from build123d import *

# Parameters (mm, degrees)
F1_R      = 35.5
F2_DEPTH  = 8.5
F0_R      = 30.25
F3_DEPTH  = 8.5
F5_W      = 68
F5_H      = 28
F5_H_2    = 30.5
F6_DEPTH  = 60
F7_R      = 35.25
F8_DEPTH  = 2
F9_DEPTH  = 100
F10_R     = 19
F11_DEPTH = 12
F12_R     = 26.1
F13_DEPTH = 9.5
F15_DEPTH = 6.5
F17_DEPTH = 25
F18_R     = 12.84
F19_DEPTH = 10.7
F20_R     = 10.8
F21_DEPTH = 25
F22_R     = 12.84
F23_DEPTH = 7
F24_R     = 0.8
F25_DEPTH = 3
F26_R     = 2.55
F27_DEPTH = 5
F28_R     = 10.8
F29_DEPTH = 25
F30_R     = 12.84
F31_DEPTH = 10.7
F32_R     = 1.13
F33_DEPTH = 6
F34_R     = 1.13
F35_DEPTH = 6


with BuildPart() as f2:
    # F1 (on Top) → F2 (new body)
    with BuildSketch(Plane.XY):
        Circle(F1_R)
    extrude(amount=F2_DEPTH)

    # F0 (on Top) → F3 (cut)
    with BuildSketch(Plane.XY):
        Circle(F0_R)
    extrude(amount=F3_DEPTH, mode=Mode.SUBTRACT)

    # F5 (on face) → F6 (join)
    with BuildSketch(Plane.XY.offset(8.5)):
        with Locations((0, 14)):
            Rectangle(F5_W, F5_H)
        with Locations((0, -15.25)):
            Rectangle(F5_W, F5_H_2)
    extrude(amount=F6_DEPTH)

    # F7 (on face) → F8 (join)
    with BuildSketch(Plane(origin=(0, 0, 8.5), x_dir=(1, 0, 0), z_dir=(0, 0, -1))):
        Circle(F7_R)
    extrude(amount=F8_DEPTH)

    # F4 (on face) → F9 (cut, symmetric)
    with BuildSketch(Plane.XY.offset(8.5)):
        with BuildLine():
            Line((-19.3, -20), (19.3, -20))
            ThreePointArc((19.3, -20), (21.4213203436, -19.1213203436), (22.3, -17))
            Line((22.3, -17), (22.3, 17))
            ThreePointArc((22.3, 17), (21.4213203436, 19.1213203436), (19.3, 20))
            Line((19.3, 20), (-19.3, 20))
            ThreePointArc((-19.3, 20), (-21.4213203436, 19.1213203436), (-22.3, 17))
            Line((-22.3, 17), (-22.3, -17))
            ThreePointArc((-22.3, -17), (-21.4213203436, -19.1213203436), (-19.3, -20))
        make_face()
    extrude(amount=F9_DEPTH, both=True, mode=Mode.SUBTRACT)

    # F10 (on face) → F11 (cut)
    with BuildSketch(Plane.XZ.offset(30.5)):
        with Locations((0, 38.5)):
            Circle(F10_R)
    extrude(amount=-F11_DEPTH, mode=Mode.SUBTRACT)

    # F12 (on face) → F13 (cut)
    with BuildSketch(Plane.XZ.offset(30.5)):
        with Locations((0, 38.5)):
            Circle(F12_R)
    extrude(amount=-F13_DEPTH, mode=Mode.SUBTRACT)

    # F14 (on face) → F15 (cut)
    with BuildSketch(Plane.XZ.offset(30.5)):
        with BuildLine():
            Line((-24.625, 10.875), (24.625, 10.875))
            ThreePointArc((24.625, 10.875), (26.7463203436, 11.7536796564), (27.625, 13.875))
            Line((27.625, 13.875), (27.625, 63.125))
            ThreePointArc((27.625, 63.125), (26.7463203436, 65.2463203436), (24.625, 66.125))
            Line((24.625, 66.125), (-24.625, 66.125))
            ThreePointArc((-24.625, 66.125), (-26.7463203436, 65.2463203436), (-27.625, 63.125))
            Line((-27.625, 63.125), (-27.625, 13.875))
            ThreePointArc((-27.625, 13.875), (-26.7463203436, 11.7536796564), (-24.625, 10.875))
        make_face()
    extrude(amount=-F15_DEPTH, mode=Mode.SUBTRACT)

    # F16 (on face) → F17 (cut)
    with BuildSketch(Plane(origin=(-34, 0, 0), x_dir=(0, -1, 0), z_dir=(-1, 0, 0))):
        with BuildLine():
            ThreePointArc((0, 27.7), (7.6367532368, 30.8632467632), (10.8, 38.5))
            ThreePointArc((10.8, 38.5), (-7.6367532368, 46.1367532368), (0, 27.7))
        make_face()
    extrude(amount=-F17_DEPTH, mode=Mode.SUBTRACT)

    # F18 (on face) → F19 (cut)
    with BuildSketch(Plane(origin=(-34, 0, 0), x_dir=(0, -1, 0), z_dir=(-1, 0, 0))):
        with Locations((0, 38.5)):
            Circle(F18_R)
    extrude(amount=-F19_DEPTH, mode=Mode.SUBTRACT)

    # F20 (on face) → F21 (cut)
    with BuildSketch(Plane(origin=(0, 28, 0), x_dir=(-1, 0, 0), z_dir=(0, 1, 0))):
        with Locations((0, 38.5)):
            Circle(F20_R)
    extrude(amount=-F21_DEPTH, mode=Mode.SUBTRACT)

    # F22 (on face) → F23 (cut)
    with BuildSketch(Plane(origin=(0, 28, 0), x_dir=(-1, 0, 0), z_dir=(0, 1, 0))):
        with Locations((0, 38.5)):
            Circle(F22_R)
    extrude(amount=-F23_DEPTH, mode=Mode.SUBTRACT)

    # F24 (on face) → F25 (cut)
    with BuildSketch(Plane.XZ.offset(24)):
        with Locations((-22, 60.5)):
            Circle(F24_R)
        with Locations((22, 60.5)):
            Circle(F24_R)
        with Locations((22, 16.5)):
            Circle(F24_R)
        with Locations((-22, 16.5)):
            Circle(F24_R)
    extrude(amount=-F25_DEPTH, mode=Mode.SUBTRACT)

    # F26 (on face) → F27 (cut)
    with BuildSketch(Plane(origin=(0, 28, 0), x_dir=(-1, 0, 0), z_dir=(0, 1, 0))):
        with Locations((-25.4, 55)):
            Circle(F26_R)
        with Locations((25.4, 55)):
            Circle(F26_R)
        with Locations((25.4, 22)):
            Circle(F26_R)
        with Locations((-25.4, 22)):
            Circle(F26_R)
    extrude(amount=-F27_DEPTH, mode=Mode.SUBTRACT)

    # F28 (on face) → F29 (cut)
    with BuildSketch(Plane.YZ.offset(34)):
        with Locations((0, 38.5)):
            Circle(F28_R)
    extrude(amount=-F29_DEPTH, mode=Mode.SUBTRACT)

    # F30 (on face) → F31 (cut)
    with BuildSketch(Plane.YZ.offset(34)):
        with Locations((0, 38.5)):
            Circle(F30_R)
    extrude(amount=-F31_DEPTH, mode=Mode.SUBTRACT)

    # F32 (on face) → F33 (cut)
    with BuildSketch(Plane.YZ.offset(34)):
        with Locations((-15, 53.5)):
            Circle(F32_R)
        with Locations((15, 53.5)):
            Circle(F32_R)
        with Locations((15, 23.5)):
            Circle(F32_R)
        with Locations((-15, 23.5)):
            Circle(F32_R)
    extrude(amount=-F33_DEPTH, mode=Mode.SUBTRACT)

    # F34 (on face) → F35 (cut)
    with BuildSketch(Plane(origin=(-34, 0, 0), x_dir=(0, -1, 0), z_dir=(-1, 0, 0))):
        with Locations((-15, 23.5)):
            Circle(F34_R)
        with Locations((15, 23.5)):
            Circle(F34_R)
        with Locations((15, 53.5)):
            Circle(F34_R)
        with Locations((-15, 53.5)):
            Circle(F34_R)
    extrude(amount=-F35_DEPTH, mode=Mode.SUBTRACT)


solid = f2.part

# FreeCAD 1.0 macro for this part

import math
import FreeCAD as App
import Part
import Sketcher

V = App.Vector
Q = App.Units.Quantity


def add_polygon(sketch, points):
    """Adds a closed chain of lines whose ends are joined by coincident constraints."""
    first, n = sketch.GeometryCount, len(points)
    for a, b in zip(points, points[1:] + points[:1]):
        sketch.addGeometry(Part.LineSegment(App.Vector(*a, 0), App.Vector(*b, 0)), False)
    for i in range(n):
        sketch.addConstraint(Sketcher.Constraint("Coincident", first + i, 2, first + (i + 1) % n, 1))

doc = App.newDocument("Part")
body = doc.addObject("PartDesign::Body", "Body")

sketch1 = body.newObject("Sketcher::SketchObject", "Sketch")
sketch1.AttachmentSupport = (doc.getObject("XY_Plane"), [""])
sketch1.MapMode = "FlatFace"
sketch1.addGeometry(Part.Circle(V(0, 0, 0), V(0, 0, 1), 36), False)
sketch1.addConstraint([
    Sketcher.Constraint("Coincident", 0, 3, -1, 1),
    Sketcher.Constraint("Diameter", 0, Q("71 mm")),
])
pad1 = body.newObject("PartDesign::Pad", "Pad")
pad1.Profile = sketch1
pad1.Length = 8.5

sketch2 = body.newObject("Sketcher::SketchObject", "Sketch001")
sketch2.AttachmentSupport = (doc.getObject("XY_Plane"), [""])
sketch2.MapMode = "FlatFace"
sketch2.addGeometry(Part.Circle(V(0, 0, 0), V(0, 0, 1), 30), False)
sketch2.addConstraint([
    Sketcher.Constraint("Coincident", 0, 3, -1, 1),
    Sketcher.Constraint("Diameter", 0, Q("60.5 mm")),
])
pocket1 = body.newObject("PartDesign::Pocket", "Pocket")
pocket1.Profile = sketch2
pocket1.Length = 8.5
pocket1.Reversed = True

sketch3 = body.newObject("Sketcher::SketchObject", "Sketch002")
sketch3.AttachmentSupport = (doc.getObject("XY_Plane"), [""])
sketch3.MapMode = "FlatFace"
sketch3.AttachmentOffset = App.Placement(V(0, 0, 8.5), App.Rotation())
add_polygon(sketch3, [(-34, 28), (-34, -30), (34, -30), (34, 28)])
sketch3.addConstraint([
    Sketcher.Constraint("Vertical", 0),
    Sketcher.Constraint("Horizontal", 1),
    Sketcher.Constraint("Vertical", 2),
    Sketcher.Constraint("Horizontal", 3),
    Sketcher.Constraint("DistanceX", 1, 1, 1, 2, Q("68 mm")),
    Sketcher.Constraint("DistanceY", 0, 2, 0, 1, Q("58.5 mm")),
    Sketcher.Constraint("DistanceX", 0, 2, -1, 1, Q("34 mm")),
    Sketcher.Constraint("DistanceY", -1, 1, 2, 2, Q("28 mm")),
])
pad2 = body.newObject("PartDesign::Pad", "Pad001")
pad2.Profile = sketch3
pad2.Length = 60

sketch4 = body.newObject("Sketcher::SketchObject", "Sketch003")
sketch4.AttachmentSupport = (doc.getObject("XY_Plane"), [""])
sketch4.MapMode = "FlatFace"
sketch4.AttachmentOffset = App.Placement(V(0, 0, 8.5), App.Rotation())
sketch4.addGeometry(Part.Circle(V(0, 0, 0), V(0, 0, 1), 35), False)
sketch4.addConstraint([
    Sketcher.Constraint("Coincident", 0, 3, -1, 1),
    Sketcher.Constraint("Diameter", 0, Q("70.5 mm")),
])
pad3 = body.newObject("PartDesign::Pad", "Pad002")
pad3.Profile = sketch4
pad3.Length = 2
pad3.Reversed = True

sketch5 = body.newObject("Sketcher::SketchObject", "Sketch004")
sketch5.AttachmentSupport = (doc.getObject("XY_Plane"), [""])
sketch5.MapMode = "FlatFace"
sketch5.AttachmentOffset = App.Placement(V(0, 0, 8.5), App.Rotation())
sketch5.addGeometry([
    Part.LineSegment(V(-19.3, -20, 0), V(19.3, -20, 0)),
    Part.ArcOfCircle(Part.Circle(V(19.3, -17, 0), V(0, 0, 1), 3), math.radians(-90), math.radians(0)),
    Part.LineSegment(V(22.3, -17, 0), V(22.3, 17, 0)),
    Part.ArcOfCircle(Part.Circle(V(19.3, 17, 0), V(0, 0, 1), 3), math.radians(0), math.radians(90)),
    Part.LineSegment(V(19.3, 20, 0), V(-19.3, 20, 0)),
    Part.ArcOfCircle(Part.Circle(V(-19.3, 17, 0), V(0, 0, 1), 3), math.radians(90), math.radians(180)),
    Part.LineSegment(V(-22.3, 17, 0), V(-22.3, -17, 0)),
    Part.ArcOfCircle(Part.Circle(V(-19.3, -17, 0), V(0, 0, 1), 3), math.radians(180), math.radians(270)),
], False)
sketch5.addConstraint([
    Sketcher.Constraint("Tangent", 0, 2, 1, 1),
    Sketcher.Constraint("Tangent", 1, 2, 2, 1),
    Sketcher.Constraint("Tangent", 2, 2, 3, 1),
    Sketcher.Constraint("Tangent", 3, 2, 4, 1),
    Sketcher.Constraint("Tangent", 4, 2, 5, 1),
    Sketcher.Constraint("Tangent", 5, 2, 6, 1),
    Sketcher.Constraint("Tangent", 6, 2, 7, 1),
    Sketcher.Constraint("Tangent", 7, 2, 0, 1),
    Sketcher.Constraint("Horizontal", 0),
    Sketcher.Constraint("Vertical", 2),
    Sketcher.Constraint("Horizontal", 4),
    Sketcher.Constraint("Vertical", 6),
    Sketcher.Constraint("Equal", 1, 3),
    Sketcher.Constraint("Equal", 3, 5),
    Sketcher.Constraint("Equal", 5, 7),
    Sketcher.Constraint("Symmetric", 1, 3, 5, 3, -1, 1),
    Sketcher.Constraint("Radius", 1, Q("3 mm")),
    Sketcher.Constraint("DistanceY", 2, 1, 2, 2, Q("34 mm")),
    Sketcher.Constraint("DistanceX", 0, 1, 0, 2, Q("38.6 mm")),
])
pocket2 = body.newObject("PartDesign::Pocket", "Pocket001")
pocket2.Profile = sketch5
pocket2.Length = 200
pocket2.Midplane = True

sketch6 = body.newObject("Sketcher::SketchObject", "Sketch005")
sketch6.AttachmentSupport = (doc.getObject("XZ_Plane"), [""])
sketch6.MapMode = "FlatFace"
sketch6.AttachmentOffset = App.Placement(V(0, 0, 30.5), App.Rotation())
sketch6.addGeometry(Part.Circle(V(0, 38, 0), V(0, 0, 1), 19), False)
sketch6.addConstraint([
    Sketcher.Constraint("PointOnObject", 0, 3, -2),
    Sketcher.Constraint("Diameter", 0, Q("38 mm")),
    Sketcher.Constraint("DistanceY", -1, 1, 0, 3, Q("38.5 mm")),
])
pocket3 = body.newObject("PartDesign::Pocket", "Pocket002")
pocket3.Profile = sketch6
pocket3.Length = 12

sketch7 = body.newObject("Sketcher::SketchObject", "Sketch006")
sketch7.AttachmentSupport = (doc.getObject("XZ_Plane"), [""])
sketch7.MapMode = "FlatFace"
sketch7.AttachmentOffset = App.Placement(V(0, 0, 30.5), App.Rotation())
sketch7.addGeometry(Part.Circle(V(0, 38, 0), V(0, 0, 1), 26), False)
sketch7.addConstraint([
    Sketcher.Constraint("PointOnObject", 0, 3, -2),
    Sketcher.Constraint("Diameter", 0, Q("52.2 mm")),
    Sketcher.Constraint("DistanceY", -1, 1, 0, 3, Q("38.5 mm")),
])
pocket4 = body.newObject("PartDesign::Pocket", "Pocket003")
pocket4.Profile = sketch7
pocket4.Length = 9.5

sketch8 = body.newObject("Sketcher::SketchObject", "Sketch007")
sketch8.AttachmentSupport = (doc.getObject("XZ_Plane"), [""])
sketch8.MapMode = "FlatFace"
sketch8.AttachmentOffset = App.Placement(V(0, 0, 30.5), App.Rotation())
sketch8.addGeometry([
    Part.LineSegment(V(-24.6, 10.9, 0), V(24.6, 10.9, 0)),
    Part.ArcOfCircle(Part.Circle(V(24.6, 13.9, 0), V(0, 0, 1), 3), math.radians(-90), math.radians(0)),
    Part.LineSegment(V(27.6, 13.9, 0), V(27.6, 63.1, 0)),
    Part.ArcOfCircle(Part.Circle(V(24.6, 63.1, 0), V(0, 0, 1), 3), math.radians(0), math.radians(90)),
    Part.LineSegment(V(24.6, 66.1, 0), V(-24.6, 66.1, 0)),
    Part.ArcOfCircle(Part.Circle(V(-24.6, 63.1, 0), V(0, 0, 1), 3), math.radians(90), math.radians(180)),
    Part.LineSegment(V(-27.6, 63.1, 0), V(-27.6, 13.9, 0)),
    Part.ArcOfCircle(Part.Circle(V(-24.6, 13.9, 0), V(0, 0, 1), 3), math.radians(180), math.radians(270)),
], False)
sketch8.addConstraint([
    Sketcher.Constraint("Tangent", 0, 2, 1, 1),
    Sketcher.Constraint("Tangent", 1, 2, 2, 1),
    Sketcher.Constraint("Tangent", 2, 2, 3, 1),
    Sketcher.Constraint("Tangent", 3, 2, 4, 1),
    Sketcher.Constraint("Tangent", 4, 2, 5, 1),
    Sketcher.Constraint("Tangent", 5, 2, 6, 1),
    Sketcher.Constraint("Tangent", 6, 2, 7, 1),
    Sketcher.Constraint("Tangent", 7, 2, 0, 1),
    Sketcher.Constraint("Horizontal", 0),
    Sketcher.Constraint("Vertical", 2),
    Sketcher.Constraint("Horizontal", 4),
    Sketcher.Constraint("Vertical", 6),
    Sketcher.Constraint("Equal", 1, 3),
    Sketcher.Constraint("Equal", 3, 5),
    Sketcher.Constraint("Equal", 5, 7),
    Sketcher.Constraint("Equal", 4, 2),
    Sketcher.Constraint("Radius", 1, Q("3 mm")),
    Sketcher.Constraint("DistanceX", 0, 1, 0, 2, Q("49.25 mm")),
    Sketcher.Constraint("DistanceX", -1, 1, 1, 3, Q("24.625 mm")),
    Sketcher.Constraint("DistanceY", -1, 1, 1, 3, Q("13.875 mm")),
])
pocket5 = body.newObject("PartDesign::Pocket", "Pocket004")
pocket5.Profile = sketch8
pocket5.Length = 6.5

sketch9 = body.newObject("Sketcher::SketchObject", "Sketch008")
sketch9.AttachmentSupport = (doc.getObject("YZ_Plane"), [""])
sketch9.MapMode = "FlatFace"
sketch9.AttachmentOffset = App.Placement(V(0, 0, -34), App.Rotation())
sketch9.addGeometry([
    Part.ArcOfCircle(Part.Circle(V(0, 38, 0), V(0, 0, 1), 11), math.radians(180), math.radians(270)),
    Part.ArcOfCircle(Part.Circle(V(0, 38, 0), V(0, 0, 1), 11), math.radians(-90), math.radians(180)),
], False)
sketch9.addConstraint([
    Sketcher.Constraint("Tangent", 0, 1, 1, 2),
    Sketcher.Constraint("Coincident", 1, 1, 0, 2),
    Sketcher.Constraint("PointOnObject", 0, 3, -2),
    Sketcher.Constraint("PointOnObject", 1, 1, -2),
    Sketcher.Constraint("Horizontal", 1, 3, 0, 1),
    Sketcher.Constraint("Radius", 0, Q("10.8 mm")),
    Sketcher.Constraint("DistanceY", -1, 1, 0, 3, Q("38.5 mm")),
])
pocket6 = body.newObject("PartDesign::Pocket", "Pocket005")
pocket6.Profile = sketch9
pocket6.Length = 25
pocket6.Reversed = True

sketch10 = body.newObject("Sketcher::SketchObject", "Sketch009")
sketch10.AttachmentSupport = (doc.getObject("YZ_Plane"), [""])
sketch10.MapMode = "FlatFace"
sketch10.AttachmentOffset = App.Placement(V(0, 0, -34), App.Rotation())
sketch10.addGeometry(Part.Circle(V(0, 38, 0), V(0, 0, 1), 13), False)
sketch10.addConstraint([
    Sketcher.Constraint("PointOnObject", 0, 3, -2),
    Sketcher.Constraint("Diameter", 0, Q("25.68 mm")),
    Sketcher.Constraint("DistanceY", -1, 1, 0, 3, Q("38.5 mm")),
])
pocket7 = body.newObject("PartDesign::Pocket", "Pocket006")
pocket7.Profile = sketch10
pocket7.Length = 10.7
pocket7.Reversed = True

sketch11 = body.newObject("Sketcher::SketchObject", "Sketch010")
sketch11.AttachmentSupport = (doc.getObject("XZ_Plane"), [""])
sketch11.MapMode = "FlatFace"
sketch11.AttachmentOffset = App.Placement(V(0, 0, -28), App.Rotation())
sketch11.addGeometry(Part.Circle(V(0, 38, 0), V(0, 0, 1), 11), False)
sketch11.addConstraint([
    Sketcher.Constraint("PointOnObject", 0, 3, -2),
    Sketcher.Constraint("Diameter", 0, Q("21.6 mm")),
    Sketcher.Constraint("DistanceY", -1, 1, 0, 3, Q("38.5 mm")),
])
pocket8 = body.newObject("PartDesign::Pocket", "Pocket007")
pocket8.Profile = sketch11
pocket8.Length = 25
pocket8.Reversed = True

sketch12 = body.newObject("Sketcher::SketchObject", "Sketch011")
sketch12.AttachmentSupport = (doc.getObject("XZ_Plane"), [""])
sketch12.MapMode = "FlatFace"
sketch12.AttachmentOffset = App.Placement(V(0, 0, -28), App.Rotation())
sketch12.addGeometry(Part.Circle(V(0, 38, 0), V(0, 0, 1), 13), False)
sketch12.addConstraint([
    Sketcher.Constraint("PointOnObject", 0, 3, -2),
    Sketcher.Constraint("Diameter", 0, Q("25.68 mm")),
    Sketcher.Constraint("DistanceY", -1, 1, 0, 3, Q("38.5 mm")),
])
pocket9 = body.newObject("PartDesign::Pocket", "Pocket008")
pocket9.Profile = sketch12
pocket9.Length = 7
pocket9.Reversed = True

sketch13 = body.newObject("Sketcher::SketchObject", "Sketch012")
sketch13.AttachmentSupport = (doc.getObject("XZ_Plane"), [""])
sketch13.MapMode = "FlatFace"
sketch13.AttachmentOffset = App.Placement(V(0, 0, 24), App.Rotation())
sketch13.addGeometry([
    Part.Circle(V(-22, 60.5, 0), V(0, 0, 1), 0.8),
    Part.Circle(V(22, 60.5, 0), V(0, 0, 1), 0.8),
    Part.Circle(V(22, 16.5, 0), V(0, 0, 1), 0.8),
    Part.Circle(V(-22, 16.5, 0), V(0, 0, 1), 0.8),
], False)
sketch13.addConstraint([
    Sketcher.Constraint("Equal", 0, 1),
    Sketcher.Constraint("Equal", 1, 2),
    Sketcher.Constraint("Equal", 2, 3),
    Sketcher.Constraint("Symmetric", 0, 3, 1, 3, -2),
    Sketcher.Constraint("Symmetric", 2, 3, 3, 3, -2),
    Sketcher.Constraint("Vertical", 1, 3, 2, 3),
    Sketcher.Constraint("Diameter", 0, Q("1.6 mm")),
    Sketcher.Constraint("DistanceX", 0, 3, -1, 1, Q("22 mm")),
    Sketcher.Constraint("DistanceY", 2, 3, 1, 3, Q("44 mm")),
    Sketcher.Constraint("DistanceY", -1, 1, 0, 3, Q("60.5 mm")),
])
pocket10 = body.newObject("PartDesign::Pocket", "Pocket009")
pocket10.Profile = sketch13
pocket10.Length = 3

sketch14 = body.newObject("Sketcher::SketchObject", "Sketch013")
sketch14.AttachmentSupport = (doc.getObject("XZ_Plane"), [""])
sketch14.MapMode = "FlatFace"
sketch14.AttachmentOffset = App.Placement(V(0, 0, -28), App.Rotation())
sketch14.addGeometry([
    Part.Circle(V(25.4, 55, 0), V(0, 0, 1), 2.5),
    Part.Circle(V(-25.4, 55, 0), V(0, 0, 1), 2.5),
    Part.Circle(V(-25.4, 22, 0), V(0, 0, 1), 2.5),
    Part.Circle(V(25.4, 22, 0), V(0, 0, 1), 2.5),
], False)
sketch14.addConstraint([
    Sketcher.Constraint("Equal", 0, 1),
    Sketcher.Constraint("Equal", 1, 2),
    Sketcher.Constraint("Equal", 2, 3),
    Sketcher.Constraint("Symmetric", 0, 3, 1, 3, -2),
    Sketcher.Constraint("Symmetric", 2, 3, 3, 3, -2),
    Sketcher.Constraint("Vertical", 1, 3, 2, 3),
    Sketcher.Constraint("Diameter", 0, Q("5.1 mm")),
    Sketcher.Constraint("DistanceY", -1, 1, 0, 3, Q("55 mm")),
    Sketcher.Constraint("DistanceY", -1, 1, 2, 3, Q("22 mm")),
    Sketcher.Constraint("DistanceX", -1, 1, 0, 3, Q("25.4 mm")),
])
pocket11 = body.newObject("PartDesign::Pocket", "Pocket010")
pocket11.Profile = sketch14
pocket11.Length = 5
pocket11.Reversed = True

sketch15 = body.newObject("Sketcher::SketchObject", "Sketch014")
sketch15.AttachmentSupport = (doc.getObject("YZ_Plane"), [""])
sketch15.MapMode = "FlatFace"
sketch15.AttachmentOffset = App.Placement(V(0, 0, 34), App.Rotation())
sketch15.addGeometry(Part.Circle(V(0, 38, 0), V(0, 0, 1), 11), False)
sketch15.addConstraint([
    Sketcher.Constraint("PointOnObject", 0, 3, -2),
    Sketcher.Constraint("Diameter", 0, Q("21.6 mm")),
    Sketcher.Constraint("DistanceY", -1, 1, 0, 3, Q("38.5 mm")),
])
pocket12 = body.newObject("PartDesign::Pocket", "Pocket011")
pocket12.Profile = sketch15
pocket12.Length = 25

sketch16 = body.newObject("Sketcher::SketchObject", "Sketch015")
sketch16.AttachmentSupport = (doc.getObject("YZ_Plane"), [""])
sketch16.MapMode = "FlatFace"
sketch16.AttachmentOffset = App.Placement(V(0, 0, 34), App.Rotation())
sketch16.addGeometry(Part.Circle(V(0, 38, 0), V(0, 0, 1), 13), False)
sketch16.addConstraint([
    Sketcher.Constraint("PointOnObject", 0, 3, -2),
    Sketcher.Constraint("Diameter", 0, Q("25.68 mm")),
    Sketcher.Constraint("DistanceY", -1, 1, 0, 3, Q("38.5 mm")),
])
pocket13 = body.newObject("PartDesign::Pocket", "Pocket012")
pocket13.Profile = sketch16
pocket13.Length = 10.7

sketch17 = body.newObject("Sketcher::SketchObject", "Sketch016")
sketch17.AttachmentSupport = (doc.getObject("YZ_Plane"), [""])
sketch17.MapMode = "FlatFace"
sketch17.AttachmentOffset = App.Placement(V(0, 0, 34), App.Rotation())
sketch17.addGeometry([
    Part.Circle(V(-15, 53.5, 0), V(0, 0, 1), 1.1),
    Part.Circle(V(15, 53.5, 0), V(0, 0, 1), 1.1),
    Part.Circle(V(15, 23.5, 0), V(0, 0, 1), 1.1),
    Part.Circle(V(-15, 23.5, 0), V(0, 0, 1), 1.1),
], False)
sketch17.addConstraint([
    Sketcher.Constraint("Equal", 0, 1),
    Sketcher.Constraint("Equal", 1, 2),
    Sketcher.Constraint("Equal", 2, 3),
    Sketcher.Constraint("Symmetric", 0, 3, 1, 3, -2),
    Sketcher.Constraint("Symmetric", 2, 3, 3, 3, -2),
    Sketcher.Constraint("Vertical", 1, 3, 2, 3),
    Sketcher.Constraint("Diameter", 0, Q("2.26 mm")),
    Sketcher.Constraint("DistanceX", 0, 3, -1, 1, Q("15 mm")),
    Sketcher.Constraint("DistanceY", 2, 3, 1, 3, Q("30 mm")),
    Sketcher.Constraint("DistanceY", -1, 1, 0, 3, Q("53.5 mm")),
])
pocket14 = body.newObject("PartDesign::Pocket", "Pocket013")
pocket14.Profile = sketch17
pocket14.Length = 6

sketch18 = body.newObject("Sketcher::SketchObject", "Sketch017")
sketch18.AttachmentSupport = (doc.getObject("YZ_Plane"), [""])
sketch18.MapMode = "FlatFace"
sketch18.AttachmentOffset = App.Placement(V(0, 0, -34), App.Rotation())
sketch18.addGeometry([
    Part.Circle(V(15, 23.5, 0), V(0, 0, 1), 1.1),
    Part.Circle(V(-15, 23.5, 0), V(0, 0, 1), 1.1),
    Part.Circle(V(-15, 53.5, 0), V(0, 0, 1), 1.1),
    Part.Circle(V(15, 53.5, 0), V(0, 0, 1), 1.1),
], False)
sketch18.addConstraint([
    Sketcher.Constraint("Equal", 0, 1),
    Sketcher.Constraint("Equal", 1, 2),
    Sketcher.Constraint("Equal", 2, 3),
    Sketcher.Constraint("Symmetric", 0, 3, 1, 3, -2),
    Sketcher.Constraint("Symmetric", 2, 3, 3, 3, -2),
    Sketcher.Constraint("Vertical", 1, 3, 2, 3),
    Sketcher.Constraint("Diameter", 0, Q("2.26 mm")),
    Sketcher.Constraint("DistanceX", -1, 1, 0, 3, Q("15 mm")),
    Sketcher.Constraint("DistanceY", 1, 3, 2, 3, Q("30 mm")),
    Sketcher.Constraint("DistanceY", -1, 1, 0, 3, Q("23.5 mm")),
])
pocket15 = body.newObject("PartDesign::Pocket", "Pocket014")
pocket15.Profile = sketch18
pocket15.Length = 6
pocket15.Reversed = True

doc.recompute()
